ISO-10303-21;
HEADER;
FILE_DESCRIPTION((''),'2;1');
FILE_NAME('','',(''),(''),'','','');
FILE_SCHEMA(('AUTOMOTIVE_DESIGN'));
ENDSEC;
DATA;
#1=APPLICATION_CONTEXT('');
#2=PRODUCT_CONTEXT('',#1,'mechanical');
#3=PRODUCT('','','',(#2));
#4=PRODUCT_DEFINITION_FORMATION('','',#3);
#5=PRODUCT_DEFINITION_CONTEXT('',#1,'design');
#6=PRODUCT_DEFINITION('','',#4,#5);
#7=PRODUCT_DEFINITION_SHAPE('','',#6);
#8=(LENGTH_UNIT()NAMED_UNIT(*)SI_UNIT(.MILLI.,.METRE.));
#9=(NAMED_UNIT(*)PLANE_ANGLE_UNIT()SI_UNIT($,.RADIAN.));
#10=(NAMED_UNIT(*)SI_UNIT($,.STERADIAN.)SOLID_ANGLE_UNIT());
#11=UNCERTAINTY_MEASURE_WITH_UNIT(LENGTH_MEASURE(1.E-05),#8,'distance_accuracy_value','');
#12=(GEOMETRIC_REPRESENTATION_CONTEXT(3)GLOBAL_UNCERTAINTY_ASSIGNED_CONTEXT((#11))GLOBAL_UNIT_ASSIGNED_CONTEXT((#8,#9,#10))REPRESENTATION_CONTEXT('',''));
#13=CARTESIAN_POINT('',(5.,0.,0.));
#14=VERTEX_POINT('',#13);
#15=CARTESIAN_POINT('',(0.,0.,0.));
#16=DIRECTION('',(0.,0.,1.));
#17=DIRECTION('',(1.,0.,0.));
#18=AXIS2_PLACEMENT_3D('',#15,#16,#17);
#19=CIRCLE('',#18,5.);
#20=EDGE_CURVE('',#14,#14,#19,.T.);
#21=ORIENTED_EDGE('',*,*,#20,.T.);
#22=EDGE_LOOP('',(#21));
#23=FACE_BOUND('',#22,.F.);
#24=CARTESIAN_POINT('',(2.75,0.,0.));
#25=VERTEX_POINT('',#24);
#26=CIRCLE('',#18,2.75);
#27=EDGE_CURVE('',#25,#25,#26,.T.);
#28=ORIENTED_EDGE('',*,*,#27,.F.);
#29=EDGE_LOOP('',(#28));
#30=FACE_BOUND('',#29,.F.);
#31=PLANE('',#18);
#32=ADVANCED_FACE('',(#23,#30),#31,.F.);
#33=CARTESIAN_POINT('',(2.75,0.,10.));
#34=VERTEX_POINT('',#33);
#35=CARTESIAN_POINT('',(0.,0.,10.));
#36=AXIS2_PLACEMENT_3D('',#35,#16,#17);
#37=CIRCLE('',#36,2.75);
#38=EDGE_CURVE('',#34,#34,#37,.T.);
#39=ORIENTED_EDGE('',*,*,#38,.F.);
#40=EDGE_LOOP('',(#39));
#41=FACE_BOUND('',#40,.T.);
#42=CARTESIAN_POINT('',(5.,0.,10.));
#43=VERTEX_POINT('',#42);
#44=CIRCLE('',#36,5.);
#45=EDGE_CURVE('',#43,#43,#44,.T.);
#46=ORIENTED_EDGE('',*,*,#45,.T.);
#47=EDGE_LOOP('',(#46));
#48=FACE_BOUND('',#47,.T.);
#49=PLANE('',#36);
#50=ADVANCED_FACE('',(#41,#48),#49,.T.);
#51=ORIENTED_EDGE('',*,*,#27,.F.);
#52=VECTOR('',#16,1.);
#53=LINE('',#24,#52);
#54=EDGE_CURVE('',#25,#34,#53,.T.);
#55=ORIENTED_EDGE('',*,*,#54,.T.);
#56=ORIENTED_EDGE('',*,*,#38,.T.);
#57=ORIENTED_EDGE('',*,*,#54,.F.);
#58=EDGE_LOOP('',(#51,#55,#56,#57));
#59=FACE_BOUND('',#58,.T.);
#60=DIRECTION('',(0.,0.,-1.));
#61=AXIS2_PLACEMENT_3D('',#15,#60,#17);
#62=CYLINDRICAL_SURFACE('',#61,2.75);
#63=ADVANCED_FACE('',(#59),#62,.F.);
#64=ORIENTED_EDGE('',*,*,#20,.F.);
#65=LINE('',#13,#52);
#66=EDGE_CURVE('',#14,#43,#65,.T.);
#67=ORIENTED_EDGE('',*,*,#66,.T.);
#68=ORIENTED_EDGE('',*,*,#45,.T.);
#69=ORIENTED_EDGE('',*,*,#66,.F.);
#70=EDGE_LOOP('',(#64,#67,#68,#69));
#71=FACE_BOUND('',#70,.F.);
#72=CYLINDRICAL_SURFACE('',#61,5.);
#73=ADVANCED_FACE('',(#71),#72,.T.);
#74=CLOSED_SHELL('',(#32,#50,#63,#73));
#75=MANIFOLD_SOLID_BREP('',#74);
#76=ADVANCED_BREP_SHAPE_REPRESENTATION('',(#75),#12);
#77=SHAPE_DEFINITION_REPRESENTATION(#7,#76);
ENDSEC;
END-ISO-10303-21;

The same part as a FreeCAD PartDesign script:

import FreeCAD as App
import Part
import Sketcher

V = App.Vector

doc = App.newDocument("Part")
body = doc.addObject("PartDesign::Body", "Body")

sketch1 = body.newObject("Sketcher::SketchObject", "Sketch")
sketch1.AttachmentSupport = (doc.getObject("XY_Plane"), [""])
sketch1.MapMode = "FlatFace"
sketch1.addGeometry(Part.Circle(V(0, 0, 0), V(0, 0, 1), 5), False)
sketch1.addGeometry(Part.Circle(V(0, 0, 0), V(0, 0, 1), 2.8), False)
sketch1.addConstraint(Sketcher.Constraint("Coincident", 0, 3, -1, 1))
sketch1.addConstraint(Sketcher.Constraint("Coincident", 1, 3, -1, 1))
sketch1.addConstraint(Sketcher.Constraint("Diameter", 0, 10.0))
sketch1.addConstraint(Sketcher.Constraint("Diameter", 1, 5.5))
pad1 = body.newObject("PartDesign::Pad", "Pad")
pad1.Profile = sketch1
pad1.Length = 10

doc.recompute()
